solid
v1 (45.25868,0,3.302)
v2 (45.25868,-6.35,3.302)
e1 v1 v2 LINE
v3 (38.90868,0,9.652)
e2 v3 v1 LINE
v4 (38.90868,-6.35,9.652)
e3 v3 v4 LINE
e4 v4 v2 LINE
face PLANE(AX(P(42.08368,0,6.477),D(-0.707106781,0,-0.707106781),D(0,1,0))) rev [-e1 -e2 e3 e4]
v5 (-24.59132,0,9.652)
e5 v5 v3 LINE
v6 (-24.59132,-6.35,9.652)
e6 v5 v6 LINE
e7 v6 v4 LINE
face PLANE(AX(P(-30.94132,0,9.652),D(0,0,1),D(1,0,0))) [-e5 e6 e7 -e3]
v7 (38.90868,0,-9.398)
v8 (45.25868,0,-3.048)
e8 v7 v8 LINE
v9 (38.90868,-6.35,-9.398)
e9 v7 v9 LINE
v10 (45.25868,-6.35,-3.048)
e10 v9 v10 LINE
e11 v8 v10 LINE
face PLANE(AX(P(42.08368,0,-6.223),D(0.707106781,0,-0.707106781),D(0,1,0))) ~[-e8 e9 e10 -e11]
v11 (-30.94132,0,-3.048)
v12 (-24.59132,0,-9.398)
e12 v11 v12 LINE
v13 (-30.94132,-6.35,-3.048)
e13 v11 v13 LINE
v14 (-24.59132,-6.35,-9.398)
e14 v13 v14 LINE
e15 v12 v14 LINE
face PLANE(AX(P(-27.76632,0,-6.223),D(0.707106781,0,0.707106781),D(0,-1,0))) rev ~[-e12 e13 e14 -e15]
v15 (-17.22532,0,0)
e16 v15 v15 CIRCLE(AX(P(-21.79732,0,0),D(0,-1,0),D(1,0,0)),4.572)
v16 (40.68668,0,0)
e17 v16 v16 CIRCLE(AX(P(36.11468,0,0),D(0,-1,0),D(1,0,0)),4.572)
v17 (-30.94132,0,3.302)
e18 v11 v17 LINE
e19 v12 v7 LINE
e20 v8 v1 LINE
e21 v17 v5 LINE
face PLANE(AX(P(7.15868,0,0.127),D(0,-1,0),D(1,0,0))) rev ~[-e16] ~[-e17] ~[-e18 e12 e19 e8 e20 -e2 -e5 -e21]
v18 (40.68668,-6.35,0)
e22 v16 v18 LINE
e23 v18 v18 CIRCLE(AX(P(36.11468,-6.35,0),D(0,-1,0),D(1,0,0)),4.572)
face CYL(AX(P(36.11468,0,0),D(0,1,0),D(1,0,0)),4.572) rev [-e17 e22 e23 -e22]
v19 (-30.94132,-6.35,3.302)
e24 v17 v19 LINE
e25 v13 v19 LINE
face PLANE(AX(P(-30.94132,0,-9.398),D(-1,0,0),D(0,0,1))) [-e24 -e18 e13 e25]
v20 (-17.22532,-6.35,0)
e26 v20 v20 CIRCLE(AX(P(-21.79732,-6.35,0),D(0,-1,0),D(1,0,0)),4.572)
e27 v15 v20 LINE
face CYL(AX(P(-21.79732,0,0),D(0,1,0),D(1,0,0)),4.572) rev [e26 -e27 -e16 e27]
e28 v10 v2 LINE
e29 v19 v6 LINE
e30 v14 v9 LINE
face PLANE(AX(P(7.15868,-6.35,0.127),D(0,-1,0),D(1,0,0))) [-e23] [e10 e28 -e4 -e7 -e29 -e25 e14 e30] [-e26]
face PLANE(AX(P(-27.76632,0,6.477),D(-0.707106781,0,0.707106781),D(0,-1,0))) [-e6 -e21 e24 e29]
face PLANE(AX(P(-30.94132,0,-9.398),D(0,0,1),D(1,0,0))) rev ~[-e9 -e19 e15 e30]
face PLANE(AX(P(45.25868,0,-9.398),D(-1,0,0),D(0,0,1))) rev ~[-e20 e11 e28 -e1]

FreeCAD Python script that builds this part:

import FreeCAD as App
import Part
import Sketcher

V = App.Vector
Q = App.Units.Quantity


def edges_at(feature, points):
    """Names of the edges that pass closest to the given points."""
    edges = feature.Shape.Edges
    near = lambda p: min(range(len(edges)), key=lambda i: edges[i].distToShape(Part.Vertex(*p))[0])
    return sorted({f"Edge{near(p) + 1}" for p in points})

doc = App.newDocument("Part")
body = doc.addObject("PartDesign::Body", "Body")

# Sketch on XZ plane
sketch1 = body.newObject("Sketcher::SketchObject", "Sketch")
sketch1.AttachmentSupport = (doc.getObject("XZ_Plane"), [""])
sketch1.MapMode = "FlatFace"
sketch1.addGeometry([
    Part.LineSegment(V(-30.9, 9.7, 0), V(-30.9, -9.4, 0)),  # 0
    Part.LineSegment(V(-30.9, -9.4, 0), V(45.3, -9.4, 0)),  # 1
    Part.LineSegment(V(45.3, -9.4, 0), V(45.3, 9.7, 0)),  # 2
    Part.LineSegment(V(45.3, 9.7, 0), V(-30.9, 9.7, 0)),  # 3
    Part.Circle(V(-21.8, 0, 0), V(0, 0, 1), 4.6),  # 4
    Part.Circle(V(36.1, 0, 0), V(0, 0, 1), 4.6),  # 5
], False)
sketch1.addConstraint([
    Sketcher.Constraint("Coincident", 0, 2, 1, 1),
    Sketcher.Constraint("Coincident", 1, 2, 2, 1),
    Sketcher.Constraint("Coincident", 2, 2, 3, 1),
    Sketcher.Constraint("Coincident", 3, 2, 0, 1),
    Sketcher.Constraint("Vertical", 0),
    Sketcher.Constraint("Horizontal", 1),
    Sketcher.Constraint("Vertical", 2),
    Sketcher.Constraint("Horizontal", 3),
    Sketcher.Constraint("Equal", 4, 5),
    Sketcher.Constraint("PointOnObject", 4, 3, -1),
    Sketcher.Constraint("PointOnObject", 5, 3, -1),
    Sketcher.Constraint("Diameter", 4, Q("0.36 in")),
    Sketcher.Constraint("DistanceX", 1, 1, 1, 2, Q("3 in")),
    Sketcher.Constraint("DistanceY", 0, 2, 0, 1, Q("0.75 in")),
    Sketcher.Constraint("DistanceY", 0, 2, -1, 1, Q("0.37 in")),
    Sketcher.Constraint("DistanceX", 4, 3, 5, 3, Q("2.28 in")),
    Sketcher.Constraint("DistanceX", 0, 2, 4, 3, Q("0.36 in")),
    Sketcher.Constraint("DistanceX", 4, 3, -1, 1, 21.79732),
])
pad1 = body.newObject("PartDesign::Pad", "Pad")
pad1.Profile = sketch1
pad1.Length = Q("0.25 in")
doc.recompute()

chamfer = body.newObject("PartDesign::Chamfer", "Chamfer")
chamfer.Base = (pad1, edges_at(pad1, [(-30.941, -3.175, 9.652), (45.259, -3.175, 9.652), (45.259, -3.175, -9.398)]))
chamfer.Size = Q("0.25 in")
doc.recompute()

chamfer2 = body.newObject("PartDesign::Chamfer", "Chamfer001")
chamfer2.Base = (chamfer, edges_at(chamfer, [(-30.941, -3.175, -9.398)]))
chamfer2.Size = Q("0.25 in")

doc.recompute()
